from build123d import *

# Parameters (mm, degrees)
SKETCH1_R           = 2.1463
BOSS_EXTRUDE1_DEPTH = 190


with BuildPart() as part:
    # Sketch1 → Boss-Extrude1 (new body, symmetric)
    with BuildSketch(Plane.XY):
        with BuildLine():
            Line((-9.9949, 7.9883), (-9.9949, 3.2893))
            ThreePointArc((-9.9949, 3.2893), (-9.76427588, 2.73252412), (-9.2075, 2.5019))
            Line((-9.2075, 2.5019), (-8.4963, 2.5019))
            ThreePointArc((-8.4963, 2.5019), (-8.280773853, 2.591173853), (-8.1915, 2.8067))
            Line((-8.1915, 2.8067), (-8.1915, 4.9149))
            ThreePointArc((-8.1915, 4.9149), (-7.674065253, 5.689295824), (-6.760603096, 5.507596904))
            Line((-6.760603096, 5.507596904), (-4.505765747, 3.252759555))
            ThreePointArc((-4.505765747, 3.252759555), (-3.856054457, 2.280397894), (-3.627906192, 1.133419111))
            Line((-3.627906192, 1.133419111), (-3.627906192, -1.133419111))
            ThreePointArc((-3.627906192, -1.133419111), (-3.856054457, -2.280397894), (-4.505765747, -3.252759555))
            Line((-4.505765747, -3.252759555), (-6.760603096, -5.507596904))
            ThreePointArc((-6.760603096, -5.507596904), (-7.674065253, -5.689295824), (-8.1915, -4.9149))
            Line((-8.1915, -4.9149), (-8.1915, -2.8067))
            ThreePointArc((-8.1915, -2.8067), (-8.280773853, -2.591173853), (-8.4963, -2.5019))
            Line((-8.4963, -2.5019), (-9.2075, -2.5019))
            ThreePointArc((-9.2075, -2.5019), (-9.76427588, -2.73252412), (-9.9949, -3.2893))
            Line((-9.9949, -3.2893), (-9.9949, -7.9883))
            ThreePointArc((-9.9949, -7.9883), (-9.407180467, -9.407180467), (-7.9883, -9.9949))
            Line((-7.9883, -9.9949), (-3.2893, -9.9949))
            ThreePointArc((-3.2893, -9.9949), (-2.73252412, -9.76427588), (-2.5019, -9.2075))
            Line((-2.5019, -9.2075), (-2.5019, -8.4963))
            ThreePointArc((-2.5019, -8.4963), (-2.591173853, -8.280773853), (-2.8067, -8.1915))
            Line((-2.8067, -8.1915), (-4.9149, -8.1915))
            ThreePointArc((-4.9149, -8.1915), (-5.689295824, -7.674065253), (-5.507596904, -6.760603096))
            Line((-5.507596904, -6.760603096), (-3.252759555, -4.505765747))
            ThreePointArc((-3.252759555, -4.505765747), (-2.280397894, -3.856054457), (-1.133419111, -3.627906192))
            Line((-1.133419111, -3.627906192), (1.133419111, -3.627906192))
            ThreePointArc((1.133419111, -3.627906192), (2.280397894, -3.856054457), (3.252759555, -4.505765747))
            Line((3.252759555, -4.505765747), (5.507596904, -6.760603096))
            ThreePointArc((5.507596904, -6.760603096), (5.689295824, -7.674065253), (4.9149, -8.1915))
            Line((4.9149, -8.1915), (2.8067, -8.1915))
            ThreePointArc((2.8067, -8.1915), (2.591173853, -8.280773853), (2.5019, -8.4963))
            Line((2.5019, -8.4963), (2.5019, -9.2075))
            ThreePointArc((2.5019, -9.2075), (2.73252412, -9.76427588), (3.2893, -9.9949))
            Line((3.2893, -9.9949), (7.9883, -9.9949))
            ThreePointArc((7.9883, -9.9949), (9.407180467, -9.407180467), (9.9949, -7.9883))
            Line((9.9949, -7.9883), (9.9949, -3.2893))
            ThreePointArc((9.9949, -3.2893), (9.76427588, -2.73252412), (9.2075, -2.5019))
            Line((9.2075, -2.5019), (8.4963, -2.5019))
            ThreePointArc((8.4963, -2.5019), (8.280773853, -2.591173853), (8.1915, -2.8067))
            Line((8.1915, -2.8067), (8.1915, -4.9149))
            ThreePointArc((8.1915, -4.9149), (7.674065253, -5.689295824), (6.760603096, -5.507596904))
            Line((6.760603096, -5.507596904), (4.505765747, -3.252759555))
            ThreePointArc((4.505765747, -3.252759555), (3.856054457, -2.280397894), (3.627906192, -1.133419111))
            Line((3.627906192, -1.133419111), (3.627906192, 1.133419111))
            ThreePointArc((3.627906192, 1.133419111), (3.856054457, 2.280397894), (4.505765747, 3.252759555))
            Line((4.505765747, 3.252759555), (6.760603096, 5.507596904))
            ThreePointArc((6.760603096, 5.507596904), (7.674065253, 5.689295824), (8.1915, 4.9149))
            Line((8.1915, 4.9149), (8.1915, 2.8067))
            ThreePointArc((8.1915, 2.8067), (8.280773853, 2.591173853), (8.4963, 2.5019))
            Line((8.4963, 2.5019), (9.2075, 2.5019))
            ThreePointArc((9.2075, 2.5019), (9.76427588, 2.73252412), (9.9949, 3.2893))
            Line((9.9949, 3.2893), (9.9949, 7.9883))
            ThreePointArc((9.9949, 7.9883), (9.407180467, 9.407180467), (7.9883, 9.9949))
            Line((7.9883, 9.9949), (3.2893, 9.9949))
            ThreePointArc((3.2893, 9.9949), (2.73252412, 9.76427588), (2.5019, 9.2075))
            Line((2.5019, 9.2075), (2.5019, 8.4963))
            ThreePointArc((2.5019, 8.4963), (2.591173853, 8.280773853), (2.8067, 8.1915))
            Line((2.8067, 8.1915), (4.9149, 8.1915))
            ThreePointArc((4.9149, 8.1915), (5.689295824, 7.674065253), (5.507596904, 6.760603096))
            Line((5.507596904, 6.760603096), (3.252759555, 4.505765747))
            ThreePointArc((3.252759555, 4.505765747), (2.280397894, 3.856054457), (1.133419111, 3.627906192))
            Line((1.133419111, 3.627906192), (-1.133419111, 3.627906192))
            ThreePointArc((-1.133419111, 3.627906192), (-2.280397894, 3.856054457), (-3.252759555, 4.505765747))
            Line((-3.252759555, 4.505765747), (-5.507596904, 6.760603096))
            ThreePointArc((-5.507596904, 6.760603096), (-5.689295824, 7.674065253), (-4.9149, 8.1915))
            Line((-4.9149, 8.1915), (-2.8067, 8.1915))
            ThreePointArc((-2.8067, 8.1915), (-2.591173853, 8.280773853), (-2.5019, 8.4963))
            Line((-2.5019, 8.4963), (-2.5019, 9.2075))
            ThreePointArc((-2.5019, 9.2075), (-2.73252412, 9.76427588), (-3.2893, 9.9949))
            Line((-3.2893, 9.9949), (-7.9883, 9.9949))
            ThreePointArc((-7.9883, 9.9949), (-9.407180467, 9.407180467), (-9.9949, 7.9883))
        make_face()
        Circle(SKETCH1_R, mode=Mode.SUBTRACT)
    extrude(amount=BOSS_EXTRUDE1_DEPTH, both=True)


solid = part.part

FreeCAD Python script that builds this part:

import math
import FreeCAD as App
import Part
import Sketcher
Q = App.Units.Quantity

doc = App.newDocument("Part")
body = doc.addObject("PartDesign::Body", "Body")

# Sketch on XY plane
sketch1 = doc.addObject("Sketcher::SketchObject", "Sketch")
body.addObject(sketch1)
sketch1.AttachmentSupport = (doc.XY_Plane, [""])
sketch1.MapMode = "FlatFace"
sketch1.addGeometry([
    Part.LineSegment(App.Vector(-9.9949, 7.9883, 0), App.Vector(-9.9949, 3.2893, 0)),  # 0
    Part.ArcOfCircle(Part.Circle(App.Vector(-9.2075, 3.2893, 0), App.Vector(0, 0, 1), 0.7874), math.radians(180), math.radians(270)),  # 1
    Part.LineSegment(App.Vector(-9.2075, 2.5019, 0), App.Vector(-8.4963, 2.5019, 0)),  # 2
    Part.ArcOfCircle(Part.Circle(App.Vector(-8.4963, 2.8067, 0), App.Vector(0, 0, 1), 0.3048), math.radians(-90), math.radians(0)),  # 3
    Part.LineSegment(App.Vector(-8.1915, 2.8067, 0), App.Vector(-8.1915, 4.9149, 0)),  # 4
    Part.ArcOfCircle(Part.Circle(App.Vector(-7.3533, 4.9149, 0), App.Vector(0, 0, 1), 0.8382), math.radians(45), math.radians(180)),  # 5
    Part.LineSegment(App.Vector(-6.760603, 5.507597, 0), App.Vector(-4.505766, 3.25276, 0)),  # 6
    Part.ArcOfCircle(Part.Circle(App.Vector(-6.625106, 1.133419, 0), App.Vector(0, 0, 1), 2.9972), math.radians(0), math.radians(45)),  # 7
    Part.LineSegment(App.Vector(-3.627906, 1.133419, 0), App.Vector(-3.627906, -1.133419, 0)),  # 8
    Part.ArcOfCircle(Part.Circle(App.Vector(-6.625106, -1.133419, 0), App.Vector(0, 0, 1), 2.9972), math.radians(-45), math.radians(0)),  # 9
    Part.LineSegment(App.Vector(-4.505766, -3.25276, 0), App.Vector(-6.760603, -5.507597, 0)),  # 10
    Part.ArcOfCircle(Part.Circle(App.Vector(-7.3533, -4.9149, 0), App.Vector(0, 0, 1), 0.8382), math.radians(180), math.radians(315)),  # 11
    Part.LineSegment(App.Vector(-8.1915, -4.9149, 0), App.Vector(-8.1915, -2.8067, 0)),  # 12
    Part.ArcOfCircle(Part.Circle(App.Vector(-8.4963, -2.8067, 0), App.Vector(0, 0, 1), 0.3048), math.radians(0), math.radians(90)),  # 13
    Part.LineSegment(App.Vector(-8.4963, -2.5019, 0), App.Vector(-9.2075, -2.5019, 0)),  # 14
    Part.ArcOfCircle(Part.Circle(App.Vector(-9.2075, -3.2893, 0), App.Vector(0, 0, 1), 0.7874), math.radians(90), math.radians(180)),  # 15
    Part.LineSegment(App.Vector(-9.9949, -3.2893, 0), App.Vector(-9.9949, -7.9883, 0)),  # 16
    Part.ArcOfCircle(Part.Circle(App.Vector(-7.9883, -7.9883, 0), App.Vector(0, 0, 1), 2.0066), math.radians(180), math.radians(270)),  # 17
    Part.LineSegment(App.Vector(-7.9883, -9.9949, 0), App.Vector(-3.2893, -9.9949, 0)),  # 18
    Part.ArcOfCircle(Part.Circle(App.Vector(-3.2893, -9.2075, 0), App.Vector(0, 0, 1), 0.7874), math.radians(-90), math.radians(0)),  # 19
    Part.LineSegment(App.Vector(-2.5019, -9.2075, 0), App.Vector(-2.5019, -8.4963, 0)),  # 20
    Part.ArcOfCircle(Part.Circle(App.Vector(-2.8067, -8.4963, 0), App.Vector(0, 0, 1), 0.3048), math.radians(0), math.radians(90)),  # 21
    Part.LineSegment(App.Vector(-2.8067, -8.1915, 0), App.Vector(-4.9149, -8.1915, 0)),  # 22
    Part.ArcOfCircle(Part.Circle(App.Vector(-4.9149, -7.3533, 0), App.Vector(0, 0, 1), 0.8382), math.radians(135), math.radians(270)),  # 23
    Part.LineSegment(App.Vector(-5.507597, -6.760603, 0), App.Vector(-3.25276, -4.505766, 0)),  # 24
    Part.ArcOfCircle(Part.Circle(App.Vector(-1.133419, -6.625106, 0), App.Vector(0, 0, 1), 2.9972), math.radians(90), math.radians(135)),  # 25
    Part.LineSegment(App.Vector(-1.133419, -3.627906, 0), App.Vector(1.133419, -3.627906, 0)),  # 26
    Part.ArcOfCircle(Part.Circle(App.Vector(1.133419, -6.625106, 0), App.Vector(0, 0, 1), 2.9972), math.radians(45), math.radians(90)),  # 27
    Part.LineSegment(App.Vector(3.25276, -4.505766, 0), App.Vector(5.507597, -6.760603, 0)),  # 28
    Part.ArcOfCircle(Part.Circle(App.Vector(4.9149, -7.3533, 0), App.Vector(0, 0, 1), 0.8382), math.radians(-90), math.radians(45)),  # 29
    Part.LineSegment(App.Vector(4.9149, -8.1915, 0), App.Vector(2.8067, -8.1915, 0)),  # 30
    Part.ArcOfCircle(Part.Circle(App.Vector(2.8067, -8.4963, 0), App.Vector(0, 0, 1), 0.3048), math.radians(90), math.radians(180)),  # 31
    Part.LineSegment(App.Vector(2.5019, -8.4963, 0), App.Vector(2.5019, -9.2075, 0)),  # 32
    Part.ArcOfCircle(Part.Circle(App.Vector(3.2893, -9.2075, 0), App.Vector(0, 0, 1), 0.7874), math.radians(180), math.radians(270)),  # 33
    Part.LineSegment(App.Vector(3.2893, -9.9949, 0), App.Vector(7.9883, -9.9949, 0)),  # 34
    Part.ArcOfCircle(Part.Circle(App.Vector(7.9883, -7.9883, 0), App.Vector(0, 0, 1), 2.0066), math.radians(-90), math.radians(0)),  # 35
    Part.LineSegment(App.Vector(9.9949, -7.9883, 0), App.Vector(9.9949, -3.2893, 0)),  # 36
    Part.ArcOfCircle(Part.Circle(App.Vector(9.2075, -3.2893, 0), App.Vector(0, 0, 1), 0.7874), math.radians(0), math.radians(90)),  # 37
    Part.LineSegment(App.Vector(9.2075, -2.5019, 0), App.Vector(8.4963, -2.5019, 0)),  # 38
    Part.ArcOfCircle(Part.Circle(App.Vector(8.4963, -2.8067, 0), App.Vector(0, 0, 1), 0.3048), math.radians(90), math.radians(180)),  # 39
    Part.LineSegment(App.Vector(8.1915, -2.8067, 0), App.Vector(8.1915, -4.9149, 0)),  # 40
    Part.ArcOfCircle(Part.Circle(App.Vector(7.3533, -4.9149, 0), App.Vector(0, 0, 1), 0.8382), math.radians(-135), math.radians(0)),  # 41
    Part.LineSegment(App.Vector(6.760603, -5.507597, 0), App.Vector(4.505766, -3.25276, 0)),  # 42
    Part.ArcOfCircle(Part.Circle(App.Vector(6.625106, -1.133419, 0), App.Vector(0, 0, 1), 2.9972), math.radians(180), math.radians(225)),  # 43
    Part.LineSegment(App.Vector(3.627906, -1.133419, 0), App.Vector(3.627906, 1.133419, 0)),  # 44
    Part.ArcOfCircle(Part.Circle(App.Vector(6.625106, 1.133419, 0), App.Vector(0, 0, 1), 2.9972), math.radians(135), math.radians(180)),  # 45
    Part.LineSegment(App.Vector(4.505766, 3.25276, 0), App.Vector(6.760603, 5.507597, 0)),  # 46
    Part.ArcOfCircle(Part.Circle(App.Vector(7.3533, 4.9149, 0), App.Vector(0, 0, 1), 0.8382), math.radians(0), math.radians(135)),  # 47
    Part.LineSegment(App.Vector(8.1915, 4.9149, 0), App.Vector(8.1915, 2.8067, 0)),  # 48
    Part.ArcOfCircle(Part.Circle(App.Vector(8.4963, 2.8067, 0), App.Vector(0, 0, 1), 0.3048), math.radians(180), math.radians(270)),  # 49
    Part.LineSegment(App.Vector(8.4963, 2.5019, 0), App.Vector(9.2075, 2.5019, 0)),  # 50
    Part.ArcOfCircle(Part.Circle(App.Vector(9.2075, 3.2893, 0), App.Vector(0, 0, 1), 0.7874), math.radians(-90), math.radians(0)),  # 51
    Part.LineSegment(App.Vector(9.9949, 3.2893, 0), App.Vector(9.9949, 7.9883, 0)),  # 52
    Part.ArcOfCircle(Part.Circle(App.Vector(7.9883, 7.9883, 0), App.Vector(0, 0, 1), 2.0066), math.radians(0), math.radians(90)),  # 53
    Part.LineSegment(App.Vector(7.9883, 9.9949, 0), App.Vector(3.2893, 9.9949, 0)),  # 54
    Part.ArcOfCircle(Part.Circle(App.Vector(3.2893, 9.2075, 0), App.Vector(0, 0, 1), 0.7874), math.radians(90), math.radians(180)),  # 55
    Part.LineSegment(App.Vector(2.5019, 9.2075, 0), App.Vector(2.5019, 8.4963, 0)),  # 56
    Part.ArcOfCircle(Part.Circle(App.Vector(2.8067, 8.4963, 0), App.Vector(0, 0, 1), 0.3048), math.radians(180), math.radians(270)),  # 57
    Part.LineSegment(App.Vector(2.8067, 8.1915, 0), App.Vector(4.9149, 8.1915, 0)),  # 58
    Part.ArcOfCircle(Part.Circle(App.Vector(4.9149, 7.3533, 0), App.Vector(0, 0, 1), 0.8382), math.radians(-45), math.radians(90)),  # 59
    Part.LineSegment(App.Vector(5.507597, 6.760603, 0), App.Vector(3.25276, 4.505766, 0)),  # 60
    Part.ArcOfCircle(Part.Circle(App.Vector(1.133419, 6.625106, 0), App.Vector(0, 0, 1), 2.9972), math.radians(-90), math.radians(-45)),  # 61
    Part.LineSegment(App.Vector(1.133419, 3.627906, 0), App.Vector(-1.133419, 3.627906, 0)),  # 62
    Part.ArcOfCircle(Part.Circle(App.Vector(-1.133419, 6.625106, 0), App.Vector(0, 0, 1), 2.9972), math.radians(-135), math.radians(-90)),  # 63
    Part.LineSegment(App.Vector(-3.25276, 4.505766, 0), App.Vector(-5.507597, 6.760603, 0)),  # 64
    Part.ArcOfCircle(Part.Circle(App.Vector(-4.9149, 7.3533, 0), App.Vector(0, 0, 1), 0.8382), math.radians(90), math.radians(225)),  # 65
    Part.LineSegment(App.Vector(-4.9149, 8.1915, 0), App.Vector(-2.8067, 8.1915, 0)),  # 66
    Part.ArcOfCircle(Part.Circle(App.Vector(-2.8067, 8.4963, 0), App.Vector(0, 0, 1), 0.3048), math.radians(-90), math.radians(0)),  # 67
    Part.LineSegment(App.Vector(-2.5019, 8.4963, 0), App.Vector(-2.5019, 9.2075, 0)),  # 68
    Part.ArcOfCircle(Part.Circle(App.Vector(-3.2893, 9.2075, 0), App.Vector(0, 0, 1), 0.7874), math.radians(0), math.radians(90)),  # 69
    Part.LineSegment(App.Vector(-3.2893, 9.9949, 0), App.Vector(-7.9883, 9.9949, 0)),  # 70
    Part.ArcOfCircle(Part.Circle(App.Vector(-7.9883, 7.9883, 0), App.Vector(0, 0, 1), 2.0066), math.radians(90), math.radians(180)),  # 71
    Part.Circle(App.Vector(0, 0, 0), App.Vector(0, 0, 1), 2.1463),  # 72
], False)
sketch1.addConstraint([
    Sketcher.Constraint("Tangent", 0, 2, 1, 1),
    Sketcher.Constraint("Tangent", 1, 2, 2, 1),
    Sketcher.Constraint("Tangent", 2, 2, 3, 1),
    Sketcher.Constraint("Tangent", 3, 2, 4, 1),
    Sketcher.Constraint("Tangent", 4, 2, 5, 2),
    Sketcher.Constraint("Tangent", 5, 1, 6, 1),
    Sketcher.Constraint("Tangent", 6, 2, 7, 2),
    Sketcher.Constraint("Tangent", 7, 1, 8, 1),
    Sketcher.Constraint("Tangent", 8, 2, 9, 2),
    Sketcher.Constraint("Tangent", 9, 1, 10, 1),
    Sketcher.Constraint("Tangent", 10, 2, 11, 2),
    Sketcher.Constraint("Tangent", 11, 1, 12, 1),
    Sketcher.Constraint("Tangent", 12, 2, 13, 1),
    Sketcher.Constraint("Tangent", 13, 2, 14, 1),
    Sketcher.Constraint("Tangent", 14, 2, 15, 1),
    Sketcher.Constraint("Tangent", 15, 2, 16, 1),
    Sketcher.Constraint("Tangent", 16, 2, 17, 1),
    Sketcher.Constraint("Tangent", 17, 2, 18, 1),
    Sketcher.Constraint("Tangent", 18, 2, 19, 1),
    Sketcher.Constraint("Tangent", 19, 2, 20, 1),
    Sketcher.Constraint("Tangent", 20, 2, 21, 1),
    Sketcher.Constraint("Tangent", 21, 2, 22, 1),
    Sketcher.Constraint("Tangent", 22, 2, 23, 2),
    Sketcher.Constraint("Tangent", 23, 1, 24, 1),
    Sketcher.Constraint("Tangent", 24, 2, 25, 2),
    Sketcher.Constraint("Tangent", 25, 1, 26, 1),
    Sketcher.Constraint("Tangent", 26, 2, 27, 2),
    Sketcher.Constraint("Tangent", 27, 1, 28, 1),
    Sketcher.Constraint("Tangent", 28, 2, 29, 2),
    Sketcher.Constraint("Tangent", 29, 1, 30, 1),
    Sketcher.Constraint("Tangent", 30, 2, 31, 1),
    Sketcher.Constraint("Tangent", 31, 2, 32, 1),
    Sketcher.Constraint("Tangent", 32, 2, 33, 1),
    Sketcher.Constraint("Tangent", 33, 2, 34, 1),
    Sketcher.Constraint("Tangent", 34, 2, 35, 1),
    Sketcher.Constraint("Tangent", 35, 2, 36, 1),
    Sketcher.Constraint("Tangent", 36, 2, 37, 1),
    Sketcher.Constraint("Tangent", 37, 2, 38, 1),
    Sketcher.Constraint("Tangent", 38, 2, 39, 1),
    Sketcher.Constraint("Tangent", 39, 2, 40, 1),
    Sketcher.Constraint("Tangent", 40, 2, 41, 2),
    Sketcher.Constraint("Tangent", 41, 1, 42, 1),
    Sketcher.Constraint("Tangent", 42, 2, 43, 2),
    Sketcher.Constraint("Tangent", 43, 1, 44, 1),
    Sketcher.Constraint("Tangent", 44, 2, 45, 2),
    Sketcher.Constraint("Tangent", 45, 1, 46, 1),
    Sketcher.Constraint("Tangent", 46, 2, 47, 2),
    Sketcher.Constraint("Tangent", 47, 1, 48, 1),
    Sketcher.Constraint("Tangent", 48, 2, 49, 1),
    Sketcher.Constraint("Tangent", 49, 2, 50, 1),
    Sketcher.Constraint("Tangent", 50, 2, 51, 1),
    Sketcher.Constraint("Tangent", 51, 2, 52, 1),
    Sketcher.Constraint("Tangent", 52, 2, 53, 1),
    Sketcher.Constraint("Tangent", 53, 2, 54, 1),
    Sketcher.Constraint("Tangent", 54, 2, 55, 1),
    Sketcher.Constraint("Tangent", 55, 2, 56, 1),
    Sketcher.Constraint("Tangent", 56, 2, 57, 1),
    Sketcher.Constraint("Tangent", 57, 2, 58, 1),
    Sketcher.Constraint("Tangent", 58, 2, 59, 2),
    Sketcher.Constraint("Tangent", 59, 1, 60, 1),
    Sketcher.Constraint("Tangent", 60, 2, 61, 2),
    Sketcher.Constraint("Tangent", 61, 1, 62, 1),
    Sketcher.Constraint("Tangent", 62, 2, 63, 2),
    Sketcher.Constraint("Tangent", 63, 1, 64, 1),
    Sketcher.Constraint("Tangent", 64, 2, 65, 2),
    Sketcher.Constraint("Tangent", 65, 1, 66, 1),
    Sketcher.Constraint("Tangent", 66, 2, 67, 1),
    Sketcher.Constraint("Tangent", 67, 2, 68, 1),
    Sketcher.Constraint("Tangent", 68, 2, 69, 1),
    Sketcher.Constraint("Tangent", 69, 2, 70, 1),
    Sketcher.Constraint("Tangent", 70, 2, 71, 1),
    Sketcher.Constraint("Tangent", 71, 2, 0, 1),
    Sketcher.Constraint("Vertical", 0),
    Sketcher.Constraint("Horizontal", 2),
    Sketcher.Constraint("Vertical", 4),
    Sketcher.Constraint("Vertical", 8),
    Sketcher.Constraint("Vertical", 12),
    Sketcher.Constraint("Horizontal", 14),
    Sketcher.Constraint("Vertical", 16),
    Sketcher.Constraint("Horizontal", 18),
    Sketcher.Constraint("Vertical", 20),
    Sketcher.Constraint("Horizontal", 22),
    Sketcher.Constraint("Horizontal", 26),
    Sketcher.Constraint("Horizontal", 30),
    Sketcher.Constraint("Vertical", 32),
    Sketcher.Constraint("Horizontal", 34),
    Sketcher.Constraint("Vertical", 36),
    Sketcher.Constraint("Horizontal", 38),
    Sketcher.Constraint("Vertical", 40),
    Sketcher.Constraint("Vertical", 44),
    Sketcher.Constraint("Vertical", 48),
    Sketcher.Constraint("Horizontal", 50),
    Sketcher.Constraint("Vertical", 52),
    Sketcher.Constraint("Horizontal", 54),
    Sketcher.Constraint("Vertical", 56),
    Sketcher.Constraint("Horizontal", 58),
    Sketcher.Constraint("Horizontal", 62),
    Sketcher.Constraint("Horizontal", 66),
    Sketcher.Constraint("Vertical", 68),
    Sketcher.Constraint("Horizontal", 70),
    Sketcher.Constraint("Coincident", 72, 3, -1, 1),
    Sketcher.Constraint("Equal", 7, 9),
    Sketcher.Constraint("Equal", 5, 11),
    Sketcher.Constraint("Equal", 3, 13),
    Sketcher.Constraint("Equal", 1, 15),
    Sketcher.Constraint("Equal", 15, 19),
    Sketcher.Constraint("Equal", 13, 21),
    Sketcher.Constraint("Equal", 11, 23),
    Sketcher.Constraint("Equal", 9, 25),
    Sketcher.Constraint("Equal", 25, 27),
    Sketcher.Constraint("Equal", 23, 29),
    Sketcher.Constraint("Equal", 21, 31),
    Sketcher.Constraint("Equal", 19, 33),
    Sketcher.Constraint("Equal", 17, 35),
    Sketcher.Constraint("Equal", 33, 37),
    Sketcher.Constraint("Equal", 31, 39),
    Sketcher.Constraint("Equal", 29, 41),
    Sketcher.Constraint("Equal", 27, 43),
    Sketcher.Constraint("Equal", 43, 45),
    Sketcher.Constraint("Equal", 41, 47),
    Sketcher.Constraint("Equal", 39, 49),
    Sketcher.Constraint("Equal", 37, 51),
    Sketcher.Constraint("Equal", 35, 53),
    Sketcher.Constraint("Equal", 51, 55),
    Sketcher.Constraint("Equal", 49, 57),
    Sketcher.Constraint("Equal", 47, 59),
    Sketcher.Constraint("Equal", 45, 61),
    Sketcher.Constraint("Equal", 61, 63),
    Sketcher.Constraint("Equal", 59, 65),
    Sketcher.Constraint("Equal", 57, 67),
    Sketcher.Constraint("Equal", 55, 69),
    Sketcher.Constraint("Equal", 53, 71),
    Sketcher.Constraint("Symmetric", 1, 3, 37, 3, -1, 1),
    Sketcher.Constraint("Symmetric", 5, 3, 41, 3, -1, 1),
    Sketcher.Constraint("Symmetric", 7, 3, 43, 3, -1, 1),
    Sketcher.Constraint("Symmetric", 11, 3, 47, 3, -1, 1),
    Sketcher.Constraint("Symmetric", 15, 3, 51, 3, -1, 1),
    Sketcher.Constraint("Symmetric", 19, 3, 55, 3, -1, 1),
    Sketcher.Constraint("Symmetric", 23, 3, 59, 3, -1, 1),
    Sketcher.Constraint("Symmetric", 25, 3, 61, 3, -1, 1),
    Sketcher.Constraint("Symmetric", 29, 3, 65, 3, -1, 1),
    Sketcher.Constraint("Symmetric", 33, 3, 69, 3, -1, 1),
    Sketcher.Constraint("Symmetric", 23, 3, 29, 3, -2),
    Sketcher.Constraint("Symmetric", 19, 3, 33, 3, -2),
    Sketcher.Constraint("Symmetric", 15, 3, 37, 3, -2),
    Sketcher.Constraint("Symmetric", 11, 3, 41, 3, -2),
    Sketcher.Constraint("Perpendicular", 6, 10),
    Sketcher.Constraint("Parallel", 10, 24),
    Sketcher.Constraint("Perpendicular", 24, 28),
    Sketcher.Constraint("Perpendicular", 42, 46),
    Sketcher.Constraint("Perpendicular", 60, 64),
    Sketcher.Constraint("Horizontal", 9, 3, 43, 3),
    Sketcher.Constraint("Equal", 70, 0),
    Sketcher.Constraint("Equal", 66, 4),
    Sketcher.Constraint("Equal", 62, 8),
    Sketcher.Constraint("Equal", 50, 20),
    Sketcher.Constraint("Equal", 10, 24),
    Sketcher.Constraint("Diameter", 72, Q("0.169 in")),
    Sketcher.Constraint("Radius", 1, Q("0.031 in")),
    Sketcher.Constraint("Radius", 3, Q("0.012 in")),
    Sketcher.Constraint("Radius", 5, Q("0.033 in")),
    Sketcher.Constraint("Radius", 7, Q("0.118 in")),
    Sketcher.Constraint("Radius", 17, Q("0.079 in")),
    Sketcher.Constraint("DistanceX", 2, 1, 2, 2, Q("0.028 in")),
    Sketcher.Constraint("DistanceX", 18, 1, 18, 2, Q("0.185 in")),
    Sketcher.Constraint("DistanceX", 22, 2, 22, 1, Q("0.083 in")),
    Sketcher.Constraint("DistanceX", 1, 3, -1, 1, Q("0.3625 in")),
    Sketcher.Constraint("DistanceX", 26, 1, 26, 2, 2.266838),
])
pad1 = doc.addObject("PartDesign::Pad", "Pad")
body.addObject(pad1)
pad1.Profile = sketch1
pad1.Length = 380
pad1.Midplane = True

doc.recompute()
